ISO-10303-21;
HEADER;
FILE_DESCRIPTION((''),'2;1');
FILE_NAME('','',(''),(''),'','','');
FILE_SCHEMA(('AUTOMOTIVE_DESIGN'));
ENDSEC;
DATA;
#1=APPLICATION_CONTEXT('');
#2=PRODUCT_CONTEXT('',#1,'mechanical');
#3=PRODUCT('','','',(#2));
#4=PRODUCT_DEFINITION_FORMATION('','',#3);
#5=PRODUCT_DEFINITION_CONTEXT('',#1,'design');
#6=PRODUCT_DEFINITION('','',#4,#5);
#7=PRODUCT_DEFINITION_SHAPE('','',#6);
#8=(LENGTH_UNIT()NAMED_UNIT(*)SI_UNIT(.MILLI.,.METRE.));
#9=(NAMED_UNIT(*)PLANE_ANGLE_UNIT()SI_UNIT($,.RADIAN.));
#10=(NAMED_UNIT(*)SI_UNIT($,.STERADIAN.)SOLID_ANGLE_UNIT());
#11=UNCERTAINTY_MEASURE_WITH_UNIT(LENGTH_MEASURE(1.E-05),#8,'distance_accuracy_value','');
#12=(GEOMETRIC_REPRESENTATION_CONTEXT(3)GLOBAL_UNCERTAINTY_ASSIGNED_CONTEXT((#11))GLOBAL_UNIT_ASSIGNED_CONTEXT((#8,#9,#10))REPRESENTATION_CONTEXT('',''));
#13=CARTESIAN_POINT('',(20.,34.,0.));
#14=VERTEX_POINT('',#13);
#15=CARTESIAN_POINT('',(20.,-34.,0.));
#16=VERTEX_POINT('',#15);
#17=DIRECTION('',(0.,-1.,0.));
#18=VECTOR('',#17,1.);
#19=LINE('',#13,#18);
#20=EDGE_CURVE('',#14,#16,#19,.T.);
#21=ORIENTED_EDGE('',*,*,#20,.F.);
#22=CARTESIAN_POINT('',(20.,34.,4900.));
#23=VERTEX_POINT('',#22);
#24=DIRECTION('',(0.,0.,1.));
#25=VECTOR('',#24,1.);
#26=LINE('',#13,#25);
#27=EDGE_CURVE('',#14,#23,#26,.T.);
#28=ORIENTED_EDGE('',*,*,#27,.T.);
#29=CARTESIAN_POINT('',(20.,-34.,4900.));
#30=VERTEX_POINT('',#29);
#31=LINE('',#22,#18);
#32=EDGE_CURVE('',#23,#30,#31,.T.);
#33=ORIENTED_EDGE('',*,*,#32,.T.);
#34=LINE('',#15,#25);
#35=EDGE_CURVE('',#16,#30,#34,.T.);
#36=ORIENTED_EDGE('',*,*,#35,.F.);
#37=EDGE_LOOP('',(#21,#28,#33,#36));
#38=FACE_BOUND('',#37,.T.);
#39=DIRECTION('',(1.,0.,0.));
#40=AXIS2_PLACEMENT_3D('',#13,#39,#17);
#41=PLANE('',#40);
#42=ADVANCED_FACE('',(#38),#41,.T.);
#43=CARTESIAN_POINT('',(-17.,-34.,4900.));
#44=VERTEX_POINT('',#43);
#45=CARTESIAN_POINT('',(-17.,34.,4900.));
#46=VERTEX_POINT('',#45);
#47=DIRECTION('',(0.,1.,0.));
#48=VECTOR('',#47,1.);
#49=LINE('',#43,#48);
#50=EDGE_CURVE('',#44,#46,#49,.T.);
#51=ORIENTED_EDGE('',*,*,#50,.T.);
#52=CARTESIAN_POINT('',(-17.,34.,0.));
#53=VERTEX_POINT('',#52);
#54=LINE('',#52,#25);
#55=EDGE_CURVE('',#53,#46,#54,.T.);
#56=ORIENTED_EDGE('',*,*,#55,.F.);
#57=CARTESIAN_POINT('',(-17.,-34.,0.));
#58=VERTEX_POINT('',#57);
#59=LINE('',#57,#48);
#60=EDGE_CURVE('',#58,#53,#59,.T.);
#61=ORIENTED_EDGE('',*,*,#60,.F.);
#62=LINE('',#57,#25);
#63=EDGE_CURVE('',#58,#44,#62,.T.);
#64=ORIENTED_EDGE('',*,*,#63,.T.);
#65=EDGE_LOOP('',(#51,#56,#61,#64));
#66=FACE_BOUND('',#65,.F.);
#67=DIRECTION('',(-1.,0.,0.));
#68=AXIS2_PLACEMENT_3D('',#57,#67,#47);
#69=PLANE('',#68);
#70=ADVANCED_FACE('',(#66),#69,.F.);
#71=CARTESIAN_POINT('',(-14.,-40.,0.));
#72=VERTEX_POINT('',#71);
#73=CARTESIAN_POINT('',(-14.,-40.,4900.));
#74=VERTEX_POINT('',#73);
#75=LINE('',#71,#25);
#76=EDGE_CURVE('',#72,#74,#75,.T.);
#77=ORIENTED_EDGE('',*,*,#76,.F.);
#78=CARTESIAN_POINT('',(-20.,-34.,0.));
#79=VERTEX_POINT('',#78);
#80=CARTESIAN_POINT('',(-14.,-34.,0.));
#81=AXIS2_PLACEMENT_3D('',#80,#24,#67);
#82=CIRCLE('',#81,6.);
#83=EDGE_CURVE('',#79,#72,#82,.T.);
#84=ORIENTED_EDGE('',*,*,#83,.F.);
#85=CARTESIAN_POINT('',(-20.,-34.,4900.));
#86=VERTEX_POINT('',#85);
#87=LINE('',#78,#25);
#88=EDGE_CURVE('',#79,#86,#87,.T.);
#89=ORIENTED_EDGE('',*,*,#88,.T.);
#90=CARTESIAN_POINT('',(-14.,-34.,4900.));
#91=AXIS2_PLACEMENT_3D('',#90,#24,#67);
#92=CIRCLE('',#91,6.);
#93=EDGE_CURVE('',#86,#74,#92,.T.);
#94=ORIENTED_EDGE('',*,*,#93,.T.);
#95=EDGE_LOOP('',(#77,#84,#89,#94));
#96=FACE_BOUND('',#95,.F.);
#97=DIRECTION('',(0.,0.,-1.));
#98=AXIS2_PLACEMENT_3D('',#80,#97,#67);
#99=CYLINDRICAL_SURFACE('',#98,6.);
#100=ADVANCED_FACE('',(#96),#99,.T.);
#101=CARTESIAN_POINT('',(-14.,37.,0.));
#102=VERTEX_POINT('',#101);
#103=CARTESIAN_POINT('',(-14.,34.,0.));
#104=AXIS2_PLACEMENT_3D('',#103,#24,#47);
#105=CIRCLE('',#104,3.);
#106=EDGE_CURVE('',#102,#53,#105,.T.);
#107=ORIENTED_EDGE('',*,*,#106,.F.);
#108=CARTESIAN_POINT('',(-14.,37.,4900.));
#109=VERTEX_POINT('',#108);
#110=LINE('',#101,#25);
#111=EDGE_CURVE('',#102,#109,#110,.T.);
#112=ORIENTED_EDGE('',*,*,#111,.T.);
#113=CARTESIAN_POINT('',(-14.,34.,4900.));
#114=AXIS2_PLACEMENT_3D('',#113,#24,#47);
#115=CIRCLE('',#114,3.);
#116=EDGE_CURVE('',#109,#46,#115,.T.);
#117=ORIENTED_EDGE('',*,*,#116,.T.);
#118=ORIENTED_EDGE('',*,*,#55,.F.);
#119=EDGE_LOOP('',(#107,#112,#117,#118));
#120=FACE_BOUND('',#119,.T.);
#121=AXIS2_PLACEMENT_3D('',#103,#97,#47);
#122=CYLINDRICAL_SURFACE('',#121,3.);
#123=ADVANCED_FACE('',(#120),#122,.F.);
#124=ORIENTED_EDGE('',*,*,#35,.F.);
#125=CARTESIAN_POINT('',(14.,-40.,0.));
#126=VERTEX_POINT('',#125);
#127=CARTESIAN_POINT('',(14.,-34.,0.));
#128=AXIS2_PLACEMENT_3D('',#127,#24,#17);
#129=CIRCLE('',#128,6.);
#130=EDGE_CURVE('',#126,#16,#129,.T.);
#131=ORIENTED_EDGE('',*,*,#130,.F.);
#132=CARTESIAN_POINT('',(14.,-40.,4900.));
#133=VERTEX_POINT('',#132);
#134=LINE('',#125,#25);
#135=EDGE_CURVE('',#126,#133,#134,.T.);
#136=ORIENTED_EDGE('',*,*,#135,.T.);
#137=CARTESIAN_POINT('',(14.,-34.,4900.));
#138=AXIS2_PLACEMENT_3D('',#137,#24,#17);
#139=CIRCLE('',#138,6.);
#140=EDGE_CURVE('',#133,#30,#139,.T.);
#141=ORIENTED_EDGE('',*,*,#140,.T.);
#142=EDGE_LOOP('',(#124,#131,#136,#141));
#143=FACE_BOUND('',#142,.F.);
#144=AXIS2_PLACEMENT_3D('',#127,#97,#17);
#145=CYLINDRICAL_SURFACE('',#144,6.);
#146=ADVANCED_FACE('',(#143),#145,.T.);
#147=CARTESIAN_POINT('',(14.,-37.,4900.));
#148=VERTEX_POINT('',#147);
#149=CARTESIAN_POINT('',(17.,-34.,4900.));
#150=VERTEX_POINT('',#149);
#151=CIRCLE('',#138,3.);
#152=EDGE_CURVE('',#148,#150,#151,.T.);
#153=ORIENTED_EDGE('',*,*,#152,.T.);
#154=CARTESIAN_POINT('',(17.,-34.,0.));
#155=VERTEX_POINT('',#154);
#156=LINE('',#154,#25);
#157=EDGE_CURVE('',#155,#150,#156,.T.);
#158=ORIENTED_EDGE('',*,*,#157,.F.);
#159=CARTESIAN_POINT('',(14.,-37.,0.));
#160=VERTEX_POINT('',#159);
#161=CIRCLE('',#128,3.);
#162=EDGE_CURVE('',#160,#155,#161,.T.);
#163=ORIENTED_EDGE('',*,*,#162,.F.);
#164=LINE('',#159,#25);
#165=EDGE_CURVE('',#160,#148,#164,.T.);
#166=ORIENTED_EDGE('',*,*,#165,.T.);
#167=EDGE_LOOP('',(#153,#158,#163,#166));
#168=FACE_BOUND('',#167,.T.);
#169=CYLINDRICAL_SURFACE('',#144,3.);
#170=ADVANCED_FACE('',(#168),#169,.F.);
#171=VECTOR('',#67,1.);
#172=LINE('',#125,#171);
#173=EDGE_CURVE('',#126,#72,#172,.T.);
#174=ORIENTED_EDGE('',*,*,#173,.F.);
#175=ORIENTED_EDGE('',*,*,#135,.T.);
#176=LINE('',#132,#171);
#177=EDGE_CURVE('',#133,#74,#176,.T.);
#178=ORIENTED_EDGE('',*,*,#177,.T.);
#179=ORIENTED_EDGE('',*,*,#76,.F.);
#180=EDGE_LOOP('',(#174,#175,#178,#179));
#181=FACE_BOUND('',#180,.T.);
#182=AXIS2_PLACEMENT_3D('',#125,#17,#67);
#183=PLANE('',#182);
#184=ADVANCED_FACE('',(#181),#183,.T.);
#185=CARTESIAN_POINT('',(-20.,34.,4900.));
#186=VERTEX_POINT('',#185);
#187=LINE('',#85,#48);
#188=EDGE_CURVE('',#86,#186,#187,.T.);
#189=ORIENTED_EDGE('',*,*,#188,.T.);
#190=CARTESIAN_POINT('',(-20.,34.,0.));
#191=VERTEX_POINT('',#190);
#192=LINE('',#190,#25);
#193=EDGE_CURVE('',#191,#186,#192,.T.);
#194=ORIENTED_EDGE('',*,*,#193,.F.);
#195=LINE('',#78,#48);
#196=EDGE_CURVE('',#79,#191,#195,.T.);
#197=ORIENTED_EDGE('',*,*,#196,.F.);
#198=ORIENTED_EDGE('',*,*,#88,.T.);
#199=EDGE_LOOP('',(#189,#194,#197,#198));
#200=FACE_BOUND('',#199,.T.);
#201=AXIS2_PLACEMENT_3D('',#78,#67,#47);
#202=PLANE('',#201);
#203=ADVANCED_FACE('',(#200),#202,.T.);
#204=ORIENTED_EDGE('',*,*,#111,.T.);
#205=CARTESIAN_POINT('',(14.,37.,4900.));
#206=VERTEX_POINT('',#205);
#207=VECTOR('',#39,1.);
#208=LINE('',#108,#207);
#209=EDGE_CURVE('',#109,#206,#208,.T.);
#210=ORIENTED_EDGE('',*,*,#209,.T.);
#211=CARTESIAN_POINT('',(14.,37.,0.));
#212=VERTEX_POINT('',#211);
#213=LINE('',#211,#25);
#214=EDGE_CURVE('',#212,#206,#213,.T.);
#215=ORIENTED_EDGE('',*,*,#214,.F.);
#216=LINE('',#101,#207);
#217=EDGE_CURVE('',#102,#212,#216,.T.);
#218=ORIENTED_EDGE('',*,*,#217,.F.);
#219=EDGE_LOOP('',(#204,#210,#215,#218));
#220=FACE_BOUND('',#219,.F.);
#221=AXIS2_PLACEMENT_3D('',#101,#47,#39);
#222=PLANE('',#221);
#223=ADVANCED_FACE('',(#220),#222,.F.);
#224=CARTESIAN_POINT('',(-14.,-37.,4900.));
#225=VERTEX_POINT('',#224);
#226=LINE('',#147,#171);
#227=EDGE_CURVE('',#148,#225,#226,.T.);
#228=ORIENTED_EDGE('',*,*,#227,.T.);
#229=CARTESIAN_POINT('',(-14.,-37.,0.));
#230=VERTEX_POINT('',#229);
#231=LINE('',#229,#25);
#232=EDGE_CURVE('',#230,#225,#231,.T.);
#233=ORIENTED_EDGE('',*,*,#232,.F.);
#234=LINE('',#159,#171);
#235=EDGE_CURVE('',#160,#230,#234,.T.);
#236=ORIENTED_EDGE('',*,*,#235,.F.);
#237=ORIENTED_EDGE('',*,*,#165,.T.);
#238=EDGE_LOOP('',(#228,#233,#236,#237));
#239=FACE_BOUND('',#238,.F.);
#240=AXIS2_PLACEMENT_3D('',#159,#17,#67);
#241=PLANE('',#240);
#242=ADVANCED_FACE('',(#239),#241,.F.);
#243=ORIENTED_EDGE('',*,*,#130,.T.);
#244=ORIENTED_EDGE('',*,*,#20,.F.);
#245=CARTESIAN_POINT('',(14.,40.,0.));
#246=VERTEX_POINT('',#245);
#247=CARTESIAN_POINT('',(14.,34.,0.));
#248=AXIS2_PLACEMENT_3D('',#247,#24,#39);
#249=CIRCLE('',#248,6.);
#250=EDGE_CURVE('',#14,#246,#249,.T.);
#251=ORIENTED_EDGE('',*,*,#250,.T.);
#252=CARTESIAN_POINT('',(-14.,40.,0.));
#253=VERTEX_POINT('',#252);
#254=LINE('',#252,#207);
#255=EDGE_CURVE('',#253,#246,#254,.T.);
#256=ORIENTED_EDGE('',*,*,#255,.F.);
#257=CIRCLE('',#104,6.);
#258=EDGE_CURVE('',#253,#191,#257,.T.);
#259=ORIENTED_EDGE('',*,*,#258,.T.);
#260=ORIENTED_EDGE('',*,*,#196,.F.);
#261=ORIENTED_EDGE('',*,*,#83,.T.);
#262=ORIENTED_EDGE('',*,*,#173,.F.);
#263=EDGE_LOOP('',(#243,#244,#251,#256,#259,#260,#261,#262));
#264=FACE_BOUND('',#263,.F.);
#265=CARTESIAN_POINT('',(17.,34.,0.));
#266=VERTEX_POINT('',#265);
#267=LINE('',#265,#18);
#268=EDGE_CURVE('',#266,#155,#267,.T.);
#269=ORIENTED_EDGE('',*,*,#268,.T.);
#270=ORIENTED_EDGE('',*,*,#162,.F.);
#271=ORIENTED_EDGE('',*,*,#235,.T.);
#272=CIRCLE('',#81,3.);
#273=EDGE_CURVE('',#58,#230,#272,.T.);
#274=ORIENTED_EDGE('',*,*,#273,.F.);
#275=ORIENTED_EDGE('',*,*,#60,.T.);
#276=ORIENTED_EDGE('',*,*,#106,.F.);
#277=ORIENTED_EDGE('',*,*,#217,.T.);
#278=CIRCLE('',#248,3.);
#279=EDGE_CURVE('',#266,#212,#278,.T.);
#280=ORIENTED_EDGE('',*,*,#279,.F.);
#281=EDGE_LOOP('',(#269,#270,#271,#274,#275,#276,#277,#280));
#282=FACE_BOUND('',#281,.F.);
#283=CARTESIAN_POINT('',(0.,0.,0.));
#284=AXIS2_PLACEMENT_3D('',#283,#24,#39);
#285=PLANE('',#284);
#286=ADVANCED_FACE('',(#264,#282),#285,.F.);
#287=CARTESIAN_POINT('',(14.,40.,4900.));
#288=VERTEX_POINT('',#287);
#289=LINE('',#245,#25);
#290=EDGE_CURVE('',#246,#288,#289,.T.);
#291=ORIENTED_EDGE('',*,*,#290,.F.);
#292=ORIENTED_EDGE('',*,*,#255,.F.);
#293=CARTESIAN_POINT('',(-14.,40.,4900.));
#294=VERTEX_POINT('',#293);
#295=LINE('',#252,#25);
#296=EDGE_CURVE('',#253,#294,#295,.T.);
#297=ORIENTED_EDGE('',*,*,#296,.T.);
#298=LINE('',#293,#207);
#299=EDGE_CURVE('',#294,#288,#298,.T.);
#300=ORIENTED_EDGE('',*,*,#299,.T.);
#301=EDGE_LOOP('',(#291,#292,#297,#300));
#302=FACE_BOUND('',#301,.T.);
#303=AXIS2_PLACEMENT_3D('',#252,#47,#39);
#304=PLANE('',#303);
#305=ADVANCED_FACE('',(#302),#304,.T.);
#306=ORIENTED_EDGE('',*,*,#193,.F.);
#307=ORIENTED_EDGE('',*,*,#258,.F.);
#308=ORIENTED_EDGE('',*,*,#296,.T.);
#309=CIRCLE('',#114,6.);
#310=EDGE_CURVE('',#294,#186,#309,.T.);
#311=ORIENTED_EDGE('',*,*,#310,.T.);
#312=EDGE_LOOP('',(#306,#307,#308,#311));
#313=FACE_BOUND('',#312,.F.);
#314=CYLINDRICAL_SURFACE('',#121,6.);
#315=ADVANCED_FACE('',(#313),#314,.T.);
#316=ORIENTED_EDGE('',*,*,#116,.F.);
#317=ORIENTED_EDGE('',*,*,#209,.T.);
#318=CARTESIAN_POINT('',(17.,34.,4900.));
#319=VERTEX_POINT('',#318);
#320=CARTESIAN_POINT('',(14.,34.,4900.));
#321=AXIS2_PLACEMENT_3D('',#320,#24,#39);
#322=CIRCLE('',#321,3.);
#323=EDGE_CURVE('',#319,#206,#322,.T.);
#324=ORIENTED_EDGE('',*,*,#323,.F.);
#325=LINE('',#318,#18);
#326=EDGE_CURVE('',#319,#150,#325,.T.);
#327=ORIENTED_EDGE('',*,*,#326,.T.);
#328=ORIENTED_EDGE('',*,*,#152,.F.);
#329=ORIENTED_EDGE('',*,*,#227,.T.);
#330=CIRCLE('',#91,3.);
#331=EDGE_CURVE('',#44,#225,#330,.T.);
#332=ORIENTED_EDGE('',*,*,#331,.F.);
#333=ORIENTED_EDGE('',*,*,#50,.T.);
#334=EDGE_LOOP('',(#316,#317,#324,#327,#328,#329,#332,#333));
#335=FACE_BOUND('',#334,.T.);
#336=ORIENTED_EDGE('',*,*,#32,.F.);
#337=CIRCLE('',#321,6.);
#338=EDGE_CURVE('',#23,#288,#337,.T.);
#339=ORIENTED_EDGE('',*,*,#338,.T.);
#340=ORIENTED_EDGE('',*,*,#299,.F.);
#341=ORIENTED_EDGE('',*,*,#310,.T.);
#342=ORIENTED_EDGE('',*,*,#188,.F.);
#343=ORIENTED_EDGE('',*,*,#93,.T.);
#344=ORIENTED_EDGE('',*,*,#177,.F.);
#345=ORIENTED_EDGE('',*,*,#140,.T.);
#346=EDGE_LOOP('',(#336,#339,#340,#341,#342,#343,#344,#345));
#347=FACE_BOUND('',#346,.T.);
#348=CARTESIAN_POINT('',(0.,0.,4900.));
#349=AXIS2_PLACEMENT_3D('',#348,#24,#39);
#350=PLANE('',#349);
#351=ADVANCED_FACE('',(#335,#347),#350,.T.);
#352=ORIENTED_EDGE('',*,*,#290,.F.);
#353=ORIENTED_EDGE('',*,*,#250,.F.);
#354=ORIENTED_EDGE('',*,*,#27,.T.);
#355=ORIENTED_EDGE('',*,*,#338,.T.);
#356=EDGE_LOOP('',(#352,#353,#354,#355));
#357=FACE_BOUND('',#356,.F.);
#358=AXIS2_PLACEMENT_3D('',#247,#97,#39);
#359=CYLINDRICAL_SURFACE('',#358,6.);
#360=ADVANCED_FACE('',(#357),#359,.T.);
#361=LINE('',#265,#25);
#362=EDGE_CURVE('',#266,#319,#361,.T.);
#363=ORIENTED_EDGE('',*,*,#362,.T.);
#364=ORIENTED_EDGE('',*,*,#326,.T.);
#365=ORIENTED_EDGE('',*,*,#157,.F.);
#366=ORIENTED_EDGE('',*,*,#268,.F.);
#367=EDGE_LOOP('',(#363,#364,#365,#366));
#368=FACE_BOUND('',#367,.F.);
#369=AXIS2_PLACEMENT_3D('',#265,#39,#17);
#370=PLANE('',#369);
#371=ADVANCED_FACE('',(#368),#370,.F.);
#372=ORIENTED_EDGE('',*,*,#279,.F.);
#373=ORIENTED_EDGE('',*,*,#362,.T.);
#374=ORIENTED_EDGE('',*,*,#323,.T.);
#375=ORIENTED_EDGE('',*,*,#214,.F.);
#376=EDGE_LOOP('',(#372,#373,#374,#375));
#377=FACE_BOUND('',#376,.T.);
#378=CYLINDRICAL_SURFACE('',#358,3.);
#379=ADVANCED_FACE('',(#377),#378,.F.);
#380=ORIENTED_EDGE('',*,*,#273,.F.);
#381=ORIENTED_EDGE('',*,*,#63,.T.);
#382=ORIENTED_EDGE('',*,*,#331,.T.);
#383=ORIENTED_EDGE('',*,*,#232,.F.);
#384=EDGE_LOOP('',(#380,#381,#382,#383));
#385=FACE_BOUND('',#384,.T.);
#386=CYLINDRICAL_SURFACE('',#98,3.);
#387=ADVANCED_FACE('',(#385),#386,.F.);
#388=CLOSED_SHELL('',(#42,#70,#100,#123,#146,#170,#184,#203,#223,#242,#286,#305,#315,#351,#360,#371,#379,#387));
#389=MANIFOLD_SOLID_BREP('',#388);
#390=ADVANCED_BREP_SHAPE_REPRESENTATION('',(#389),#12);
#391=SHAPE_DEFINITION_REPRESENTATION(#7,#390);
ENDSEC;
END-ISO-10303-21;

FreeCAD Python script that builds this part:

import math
import FreeCAD as App
import Part
import Sketcher
from FreeCAD import Vector

doc = App.newDocument("Part")
body = doc.addObject("PartDesign::Body", "Body")

sketch1 = doc.addObject("Sketcher::SketchObject", "Sketch")
body.addObject(sketch1)
sketch1.AttachmentSupport = (doc.XY_Plane, [""])
sketch1.MapMode = "FlatFace"
sketch1.addGeometry([
    Part.LineSegment(Vector(-20, 34, 0), Vector(-20, -34, 0)),
    Part.ArcOfCircle(Part.Circle(Vector(-14, -34, 0), Vector(0, 0, 1), 6), math.radians(180), math.radians(270)),
    Part.LineSegment(Vector(-14, -40, 0), Vector(14, -40, 0)),
    Part.ArcOfCircle(Part.Circle(Vector(14, -34, 0), Vector(0, 0, 1), 6), math.radians(-90), math.radians(0)),
    Part.LineSegment(Vector(20, -34, 0), Vector(20, 34, 0)),
    Part.ArcOfCircle(Part.Circle(Vector(14, 34, 0), Vector(0, 0, 1), 6), math.radians(0), math.radians(90)),
    Part.LineSegment(Vector(14, 40, 0), Vector(-14, 40, 0)),
    Part.ArcOfCircle(Part.Circle(Vector(-14, 34, 0), Vector(0, 0, 1), 6), math.radians(90), math.radians(180)),
    Part.ArcOfCircle(Part.Circle(Vector(-14, 34, 0), Vector(0, 0, 1), 3), math.radians(90), math.radians(180)),
    Part.LineSegment(Vector(-14, 37, 0), Vector(14, 37, 0)),
    Part.ArcOfCircle(Part.Circle(Vector(14, 34, 0), Vector(0, 0, 1), 3), math.radians(0), math.radians(90)),
    Part.LineSegment(Vector(17, 34, 0), Vector(17, -34, 0)),
    Part.ArcOfCircle(Part.Circle(Vector(14, -34, 0), Vector(0, 0, 1), 3), math.radians(-90), math.radians(0)),
    Part.LineSegment(Vector(14, -37, 0), Vector(-14, -37, 0)),
    Part.ArcOfCircle(Part.Circle(Vector(-14, -34, 0), Vector(0, 0, 1), 3), math.radians(180), math.radians(270)),
    Part.LineSegment(Vector(-17, -34, 0), Vector(-17, 34, 0)),
], False)
sketch1.addConstraint([
    Sketcher.Constraint("Tangent", 0, 2, 1, 1),
    Sketcher.Constraint("Tangent", 1, 2, 2, 1),
    Sketcher.Constraint("Tangent", 2, 2, 3, 1),
    Sketcher.Constraint("Tangent", 3, 2, 4, 1),
    Sketcher.Constraint("Tangent", 4, 2, 5, 1),
    Sketcher.Constraint("Tangent", 5, 2, 6, 1),
    Sketcher.Constraint("Tangent", 6, 2, 7, 1),
    Sketcher.Constraint("Tangent", 7, 2, 0, 1),
    Sketcher.Constraint("Tangent", 8, 1, 9, 1),
    Sketcher.Constraint("Tangent", 9, 2, 10, 2),
    Sketcher.Constraint("Tangent", 10, 1, 11, 1),
    Sketcher.Constraint("Tangent", 11, 2, 12, 2),
    Sketcher.Constraint("Tangent", 12, 1, 13, 1),
    Sketcher.Constraint("Tangent", 13, 2, 14, 2),
    Sketcher.Constraint("Tangent", 14, 1, 15, 1),
    Sketcher.Constraint("Tangent", 15, 2, 8, 2),
    Sketcher.Constraint("Vertical", 0),
    Sketcher.Constraint("Horizontal", 2),
    Sketcher.Constraint("Vertical", 4),
    Sketcher.Constraint("Horizontal", 6),
    Sketcher.Constraint("Horizontal", 9),
    Sketcher.Constraint("Vertical", 11),
    Sketcher.Constraint("Horizontal", 13),
    Sketcher.Constraint("Vertical", 15),
    Sketcher.Constraint("Coincident", 8, 3, 7, 3),
    Sketcher.Constraint("Coincident", 10, 3, 5, 3),
    Sketcher.Constraint("Coincident", 12, 3, 3, 3),
    Sketcher.Constraint("Equal", 1, 3),
    Sketcher.Constraint("Equal", 3, 5),
    Sketcher.Constraint("Equal", 5, 7),
    Sketcher.Constraint("Equal", 12, 14),
    Sketcher.Constraint("Symmetric", 1, 3, 5, 3, -1, 1),
    Sketcher.Constraint("Radius", 1, 6.0),
    Sketcher.Constraint("Radius", 8, 3.0),
    Sketcher.Constraint("DistanceX", 0, 2, -1, 1, 20.0),
    Sketcher.Constraint("DistanceY", 1, 2, -1, 1, 40.0),
])
pad1 = doc.addObject("PartDesign::Pad", "Pad")
body.addObject(pad1)
pad1.Profile = sketch1
pad1.Length = 4900

doc.recompute()
